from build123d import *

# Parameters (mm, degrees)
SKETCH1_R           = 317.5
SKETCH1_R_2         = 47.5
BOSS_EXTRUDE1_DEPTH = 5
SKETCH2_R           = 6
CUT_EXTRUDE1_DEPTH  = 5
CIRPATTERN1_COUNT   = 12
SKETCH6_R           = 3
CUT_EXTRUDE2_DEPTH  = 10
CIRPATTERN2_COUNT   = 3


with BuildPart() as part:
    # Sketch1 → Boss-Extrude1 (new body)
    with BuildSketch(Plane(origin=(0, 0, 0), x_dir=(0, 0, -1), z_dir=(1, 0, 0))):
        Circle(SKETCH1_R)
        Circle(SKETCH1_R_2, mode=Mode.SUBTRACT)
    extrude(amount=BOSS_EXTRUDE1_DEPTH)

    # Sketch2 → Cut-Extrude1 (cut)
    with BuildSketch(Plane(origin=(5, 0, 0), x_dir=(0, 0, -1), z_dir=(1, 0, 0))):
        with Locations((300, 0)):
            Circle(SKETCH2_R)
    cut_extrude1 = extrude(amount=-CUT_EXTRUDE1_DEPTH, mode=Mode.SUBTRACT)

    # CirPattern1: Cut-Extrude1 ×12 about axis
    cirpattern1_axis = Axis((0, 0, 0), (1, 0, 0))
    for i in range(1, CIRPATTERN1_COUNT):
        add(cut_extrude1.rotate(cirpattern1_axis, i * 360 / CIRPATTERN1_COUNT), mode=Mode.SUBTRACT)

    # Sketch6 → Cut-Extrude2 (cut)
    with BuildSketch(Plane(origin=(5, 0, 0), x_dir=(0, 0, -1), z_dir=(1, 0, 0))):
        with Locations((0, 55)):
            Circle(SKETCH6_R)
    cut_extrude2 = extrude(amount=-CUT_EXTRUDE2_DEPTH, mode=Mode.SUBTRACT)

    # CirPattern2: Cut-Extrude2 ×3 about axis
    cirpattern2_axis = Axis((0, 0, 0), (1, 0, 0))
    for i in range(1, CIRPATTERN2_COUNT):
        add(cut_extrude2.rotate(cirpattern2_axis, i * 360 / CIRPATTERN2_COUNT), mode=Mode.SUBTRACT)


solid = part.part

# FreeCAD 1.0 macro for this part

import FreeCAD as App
import Part
import Sketcher

V = App.Vector
Q = App.Units.Quantity

doc = App.newDocument("Part")
body = doc.addObject("PartDesign::Body", "Body")

# Sketch on YZ plane
sketch1 = body.newObject("Sketcher::SketchObject", "Sketch")
sketch1.AttachmentSupport = (doc.getObject("YZ_Plane"), [""])
sketch1.MapMode = "FlatFace"
sketch1.addGeometry(Part.Circle(V(0, 0, 0), V(0, 0, 1), 317.5), False)
sketch1.addGeometry(Part.Circle(V(0, 0, 0), V(0, 0, 1), 47.5), False)
sketch1.addConstraint(Sketcher.Constraint("Coincident", 0, 3, -1, 1))
sketch1.addConstraint(Sketcher.Constraint("Coincident", 1, 3, -1, 1))
sketch1.addConstraint(Sketcher.Constraint("Diameter", 0, Q("635 mm")))
sketch1.addConstraint(Sketcher.Constraint("Diameter", 1, Q("95 mm")))
pad1 = body.newObject("PartDesign::Pad", "Pad")
pad1.Profile = sketch1
pad1.Length = 5

# Sketch on YZ plane
sketch2 = body.newObject("Sketcher::SketchObject", "Sketch001")
sketch2.AttachmentSupport = (doc.getObject("YZ_Plane"), [""])
sketch2.MapMode = "FlatFace"
sketch2.AttachmentOffset = App.Placement(V(0, 0, 5), App.Rotation())
sketch2.addGeometry(Part.Circle(V(0, -300, 0), V(0, 0, 1), 6), False)
sketch2.addConstraint(Sketcher.Constraint("PointOnObject", 0, 3, -2))
sketch2.addConstraint(Sketcher.Constraint("Diameter", 0, Q("12 mm")))
sketch2.addConstraint(Sketcher.Constraint("DistanceY", 0, 3, -1, 1, Q("300 mm")))
pocket1 = body.newObject("PartDesign::Pocket", "Pocket")
pocket1.Profile = sketch2
pocket1.Length = 5
doc.recompute()

polarpattern = body.newObject("PartDesign::PolarPattern", "PolarPattern")
polarpattern.Originals = [pocket1]
polarpattern.Axis = (doc.getObject("X_Axis"), [""])
polarpattern.Angle = 360
polarpattern.Occurrences = 12
body.Tip = polarpattern

# Sketch on YZ plane
sketch3 = body.newObject("Sketcher::SketchObject", "Sketch002")
sketch3.AttachmentSupport = (doc.getObject("YZ_Plane"), [""])
sketch3.MapMode = "FlatFace"
sketch3.AttachmentOffset = App.Placement(V(0, 0, 5), App.Rotation())
sketch3.addGeometry(Part.Circle(V(55, 0, 0), V(0, 0, 1), 3), False)
sketch3.addConstraint(Sketcher.Constraint("PointOnObject", 0, 3, -1))
sketch3.addConstraint(Sketcher.Constraint("Diameter", 0, Q("6 mm")))
sketch3.addConstraint(Sketcher.Constraint("DistanceX", -1, 1, 0, 3, Q("55 mm")))
pocket2 = body.newObject("PartDesign::Pocket", "Pocket001")
pocket2.Profile = sketch3
pocket2.Length = 10
doc.recompute()

polarpattern2 = body.newObject("PartDesign::PolarPattern", "PolarPattern001")
polarpattern2.Originals = [pocket2]
polarpattern2.Axis = (doc.getObject("X_Axis"), [""])
polarpattern2.Angle = 360
polarpattern2.Occurrences = 3
body.Tip = polarpattern2

doc.recompute()
